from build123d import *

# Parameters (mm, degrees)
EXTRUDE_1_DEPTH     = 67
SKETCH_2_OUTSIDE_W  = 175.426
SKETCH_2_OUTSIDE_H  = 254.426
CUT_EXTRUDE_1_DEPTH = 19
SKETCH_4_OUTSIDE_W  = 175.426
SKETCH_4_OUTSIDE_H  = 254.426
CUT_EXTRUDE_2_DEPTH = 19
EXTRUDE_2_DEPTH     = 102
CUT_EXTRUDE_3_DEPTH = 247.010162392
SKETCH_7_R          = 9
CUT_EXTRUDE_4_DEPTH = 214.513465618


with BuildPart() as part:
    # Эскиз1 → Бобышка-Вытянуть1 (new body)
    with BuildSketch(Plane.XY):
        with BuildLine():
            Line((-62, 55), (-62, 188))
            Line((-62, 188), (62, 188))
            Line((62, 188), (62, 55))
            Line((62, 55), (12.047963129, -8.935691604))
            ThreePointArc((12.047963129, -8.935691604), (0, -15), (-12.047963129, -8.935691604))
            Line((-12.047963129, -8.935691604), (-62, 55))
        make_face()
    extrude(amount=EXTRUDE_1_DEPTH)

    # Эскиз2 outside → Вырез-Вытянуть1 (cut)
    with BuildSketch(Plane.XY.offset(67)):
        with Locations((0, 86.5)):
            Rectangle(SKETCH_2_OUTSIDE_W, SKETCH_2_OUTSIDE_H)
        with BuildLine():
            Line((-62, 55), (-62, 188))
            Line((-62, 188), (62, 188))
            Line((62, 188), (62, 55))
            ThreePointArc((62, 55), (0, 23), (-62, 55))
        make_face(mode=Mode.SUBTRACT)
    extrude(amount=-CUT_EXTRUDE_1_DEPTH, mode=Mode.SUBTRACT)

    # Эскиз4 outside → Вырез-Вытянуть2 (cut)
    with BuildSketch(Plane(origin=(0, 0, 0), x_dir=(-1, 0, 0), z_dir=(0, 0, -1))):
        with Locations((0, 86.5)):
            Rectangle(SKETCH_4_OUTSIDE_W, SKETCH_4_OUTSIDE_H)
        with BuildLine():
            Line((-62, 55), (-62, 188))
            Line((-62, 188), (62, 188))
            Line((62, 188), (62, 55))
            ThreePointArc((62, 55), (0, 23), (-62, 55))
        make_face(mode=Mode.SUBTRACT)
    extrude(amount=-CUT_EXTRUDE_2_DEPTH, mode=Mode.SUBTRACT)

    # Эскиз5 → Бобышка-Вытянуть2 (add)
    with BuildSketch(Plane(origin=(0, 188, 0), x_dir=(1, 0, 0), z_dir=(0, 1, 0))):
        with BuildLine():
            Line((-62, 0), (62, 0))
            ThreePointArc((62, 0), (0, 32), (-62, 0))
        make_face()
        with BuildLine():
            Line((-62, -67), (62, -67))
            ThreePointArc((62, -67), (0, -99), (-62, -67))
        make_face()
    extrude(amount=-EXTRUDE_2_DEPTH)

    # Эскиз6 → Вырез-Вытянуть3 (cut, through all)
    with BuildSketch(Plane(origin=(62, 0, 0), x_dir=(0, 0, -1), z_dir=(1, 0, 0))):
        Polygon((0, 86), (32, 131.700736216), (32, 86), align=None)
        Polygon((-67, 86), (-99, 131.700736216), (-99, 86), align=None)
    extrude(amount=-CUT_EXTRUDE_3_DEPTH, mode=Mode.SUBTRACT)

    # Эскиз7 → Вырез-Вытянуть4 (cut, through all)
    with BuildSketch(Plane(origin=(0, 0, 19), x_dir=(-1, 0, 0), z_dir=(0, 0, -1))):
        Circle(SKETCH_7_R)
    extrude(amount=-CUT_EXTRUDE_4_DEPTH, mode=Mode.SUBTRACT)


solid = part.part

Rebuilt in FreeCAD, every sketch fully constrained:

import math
import FreeCAD as App
import Part
import Sketcher

V = App.Vector
Q = App.Units.Quantity

doc = App.newDocument("Part")
params = doc.addObject("Spreadsheet::Sheet", "Params")
for row, (alias, value) in enumerate([
    ("sketch1_radius", "15 mm"),
    ("sketch1_width", "124 mm"),
    ("sketch1_height", "133 mm"),
    ("pad1_length", "67 mm"),
    ("sketch2_width", "124 mm"),
    ("sketch2_height", "133 mm"),
    ("pocket1_length", "19 mm"),
    ("sketch3_width", "124 mm"),
    ("sketch3_height", "133 mm"),
    ("pocket2_length", "19 mm"),
    ("sketch4_width", "124 mm"),
    ("pad2_length", "102 mm"),
    ("sketch5_height", "32 mm"),
    ("sketch6_diameter", "18 mm"),
], start=1):
    params.set(f"A{row}", alias)
    params.set(f"B{row}", "=" + value)
    params.setAlias(f"B{row}", alias)

body = doc.addObject("PartDesign::Body", "Body")

# Sketch on XY plane
sketch1 = doc.addObject("Sketcher::SketchObject", "Sketch")
body.addObject(sketch1)
sketch1.AttachmentSupport = (doc.XY_Plane, [""])
sketch1.MapMode = "FlatFace"
sketch1.addGeometry([
    Part.LineSegment(V(-62, 188, 0), V(-62, 55, 0)),  # 0
    Part.LineSegment(V(-62, 55, 0), V(-12, -9, 0)),  # 1
    Part.ArcOfCircle(Part.Circle(V(0, 0, 0), V(0, 0, 1), 15), math.radians(-143), math.radians(-37)),  # 2
    Part.LineSegment(V(12, -9, 0), V(62, 55, 0)),  # 3
    Part.LineSegment(V(62, 55, 0), V(62, 188, 0)),  # 4
    Part.LineSegment(V(62, 188, 0), V(-62, 188, 0)),  # 5
], False)
sketch1.addConstraint([
    Sketcher.Constraint("Coincident", 0, 2, 1, 1),
    Sketcher.Constraint("Coincident", 1, 2, 2, 1),
    Sketcher.Constraint("Coincident", 2, 2, 3, 1),
    Sketcher.Constraint("Coincident", 3, 2, 4, 1),
    Sketcher.Constraint("Coincident", 4, 2, 5, 1),
    Sketcher.Constraint("Coincident", 5, 2, 0, 1),
    Sketcher.Constraint("Vertical", 0),
    Sketcher.Constraint("Vertical", 4),
    Sketcher.Constraint("Horizontal", 5),
    Sketcher.Constraint("Coincident", 2, 3, -1, 1),
    Sketcher.Constraint("Symmetric", 0, 2, 3, 2, -2),
    Sketcher.Constraint("Horizontal", 1, 2, 2, 2),
    Sketcher.Constraint("Radius", 2, 15.0),
    Sketcher.Constraint("DistanceX", 5, 2, 5, 1, 124.0),
    Sketcher.Constraint("DistanceY", 0, 2, 0, 1, 133.0),
    Sketcher.Constraint("Angle", 1, Q("-52 deg")),
    Sketcher.Constraint("DistanceY", -1, 1, 0, 2, 55.0),
])
sketch1.setExpression("Constraints[12]", "Params.sketch1_radius")
sketch1.setExpression("Constraints[13]", "Params.sketch1_width")
sketch1.setExpression("Constraints[14]", "Params.sketch1_height")
pad1 = doc.addObject("PartDesign::Pad", "Pad")
body.addObject(pad1)
pad1.Profile = sketch1
pad1.setExpression("Length", "Params.pad1_length")

# Sketch on XY plane
sketch2 = doc.addObject("Sketcher::SketchObject", "Sketch001")
body.addObject(sketch2)
sketch2.AttachmentSupport = (doc.XY_Plane, [""])
sketch2.MapMode = "FlatFace"
sketch2.AttachmentOffset = App.Placement(V(0, 0, 67), App.Rotation())
sketch2.addGeometry([
    Part.LineSegment(V(-88, 214, 0), V(-88, -41, 0)),  # 0
    Part.LineSegment(V(-88, -41, 0), V(88, -41, 0)),  # 1
    Part.LineSegment(V(88, -41, 0), V(88, 214, 0)),  # 2
    Part.LineSegment(V(88, 214, 0), V(-88, 214, 0)),  # 3
    Part.ArcOfCircle(Part.Circle(V(0, 99, 0), V(0, 0, 1), 76), math.radians(-145), math.radians(-35)),  # 4
    Part.LineSegment(V(-62, 55, 0), V(-62, 188, 0)),  # 5
    Part.LineSegment(V(-62, 188, 0), V(62, 188, 0)),  # 6
    Part.LineSegment(V(62, 188, 0), V(62, 55, 0)),  # 7
], False)
sketch2.addConstraint([
    Sketcher.Constraint("Coincident", 0, 2, 1, 1),
    Sketcher.Constraint("Coincident", 1, 2, 2, 1),
    Sketcher.Constraint("Coincident", 2, 2, 3, 1),
    Sketcher.Constraint("Coincident", 3, 2, 0, 1),
    Sketcher.Constraint("Coincident", 4, 1, 5, 1),
    Sketcher.Constraint("Coincident", 5, 2, 6, 1),
    Sketcher.Constraint("Coincident", 6, 2, 7, 1),
    Sketcher.Constraint("Coincident", 7, 2, 4, 2),
    Sketcher.Constraint("Vertical", 0),
    Sketcher.Constraint("Horizontal", 1),
    Sketcher.Constraint("Vertical", 2),
    Sketcher.Constraint("Horizontal", 3),
    Sketcher.Constraint("Vertical", 5),
    Sketcher.Constraint("Horizontal", 6),
    Sketcher.Constraint("Vertical", 7),
    Sketcher.Constraint("Symmetric", 4, 1, 7, 2, -2),
    Sketcher.Constraint("DistanceX", 6, 1, 6, 2, 124.0),
    Sketcher.Constraint("DistanceY", 5, 1, 5, 2, 133.0),
    Sketcher.Constraint("DistanceY", -1, 1, 4, 1, 55.0),
    Sketcher.Constraint("Radius", 4, 76.0625),
    Sketcher.Constraint("DistanceX", 1, 1, 1, 2, 175.426),
    Sketcher.Constraint("DistanceY", 0, 2, 0, 1, 254.426),
    Sketcher.Constraint("DistanceX", 0, 2, -1, 1, 87.713),
    Sketcher.Constraint("DistanceY", 0, 2, -1, 1, 40.713),
])
sketch2.setExpression("Constraints[16]", "Params.sketch2_width")
sketch2.setExpression("Constraints[17]", "Params.sketch2_height")
pocket1 = doc.addObject("PartDesign::Pocket", "Pocket")
body.addObject(pocket1)
pocket1.Profile = sketch2
pocket1.setExpression("Length", "Params.pocket1_length")

# Sketch on XY plane
sketch3 = doc.addObject("Sketcher::SketchObject", "Sketch002")
body.addObject(sketch3)
sketch3.AttachmentSupport = (doc.XY_Plane, [""])
sketch3.MapMode = "FlatFace"
sketch3.addGeometry([
    Part.LineSegment(V(88, 214, 0), V(88, -41, 0)),  # 0
    Part.LineSegment(V(88, -41, 0), V(-88, -41, 0)),  # 1
    Part.LineSegment(V(-88, -41, 0), V(-88, 214, 0)),  # 2
    Part.LineSegment(V(-88, 214, 0), V(88, 214, 0)),  # 3
    Part.ArcOfCircle(Part.Circle(V(0, 99, 0), V(0, 0, 1), 76), math.radians(-145), math.radians(-35)),  # 4
    Part.LineSegment(V(62, 55, 0), V(62, 188, 0)),  # 5
    Part.LineSegment(V(62, 188, 0), V(-62, 188, 0)),  # 6
    Part.LineSegment(V(-62, 188, 0), V(-62, 55, 0)),  # 7
], False)
sketch3.addConstraint([
    Sketcher.Constraint("Coincident", 0, 2, 1, 1),
    Sketcher.Constraint("Coincident", 1, 2, 2, 1),
    Sketcher.Constraint("Coincident", 2, 2, 3, 1),
    Sketcher.Constraint("Coincident", 3, 2, 0, 1),
    Sketcher.Constraint("Coincident", 4, 2, 5, 1),
    Sketcher.Constraint("Coincident", 5, 2, 6, 1),
    Sketcher.Constraint("Coincident", 6, 2, 7, 1),
    Sketcher.Constraint("Coincident", 7, 2, 4, 1),
    Sketcher.Constraint("Vertical", 0),
    Sketcher.Constraint("Horizontal", 1),
    Sketcher.Constraint("Vertical", 2),
    Sketcher.Constraint("Horizontal", 3),
    Sketcher.Constraint("Vertical", 5),
    Sketcher.Constraint("Horizontal", 6),
    Sketcher.Constraint("Vertical", 7),
    Sketcher.Constraint("Symmetric", 4, 2, 7, 2, -2),
    Sketcher.Constraint("DistanceX", 6, 2, 6, 1, 124.0),
    Sketcher.Constraint("DistanceY", 5, 1, 5, 2, 133.0),
    Sketcher.Constraint("DistanceY", -1, 1, 4, 2, 55.0),
    Sketcher.Constraint("Radius", 4, 76.0625),
    Sketcher.Constraint("DistanceX", 1, 2, 1, 1, 175.426),
    Sketcher.Constraint("DistanceY", 0, 2, 0, 1, 254.426),
    Sketcher.Constraint("DistanceX", -1, 1, 0, 2, 87.713),
    Sketcher.Constraint("DistanceY", 0, 2, -1, 1, 40.713),
])
sketch3.setExpression("Constraints[16]", "Params.sketch3_width")
sketch3.setExpression("Constraints[17]", "Params.sketch3_height")
pocket2 = doc.addObject("PartDesign::Pocket", "Pocket001")
body.addObject(pocket2)
pocket2.Profile = sketch3
pocket2.setExpression("Length", "Params.pocket2_length")
pocket2.Reversed = True

# Sketch on XZ plane
sketch4 = doc.addObject("Sketcher::SketchObject", "Sketch003")
body.addObject(sketch4)
sketch4.AttachmentSupport = (doc.XZ_Plane, [""])
sketch4.MapMode = "FlatFace"
sketch4.AttachmentOffset = App.Placement(V(0, 0, -188), App.Rotation())
sketch4.addGeometry([
    Part.LineSegment(V(-62, 0, 0), V(62, 0, 0)),
    Part.ArcOfCircle(Part.Circle(V(0, 44, 0), V(0, 0, 1), 76), math.radians(-145), math.radians(-35)),
    Part.LineSegment(V(62, 67, 0), V(-62, 67, 0)),
    Part.ArcOfCircle(Part.Circle(V(0, 23, 0), V(0, 0, 1), 76), math.radians(35), math.radians(145)),
], False)
sketch4.addConstraint([
    Sketcher.Constraint("Coincident", 0, 1, 1, 1),
    Sketcher.Constraint("Coincident", 1, 2, 0, 2),
    Sketcher.Constraint("Coincident", 2, 1, 3, 1),
    Sketcher.Constraint("Coincident", 3, 2, 2, 2),
    Sketcher.Constraint("Horizontal", 0),
    Sketcher.Constraint("Horizontal", 2),
    Sketcher.Constraint("Equal", 1, 3),
    Sketcher.Constraint("Symmetric", 0, 1, 1, 2, -1, 1),
    Sketcher.Constraint("PointOnObject", 3, 3, -2),
    Sketcher.Constraint("Vertical", 1, 2, 2, 1),
    Sketcher.Constraint("DistanceX", 0, 1, 0, 2, 124.0),
    Sketcher.Constraint("DistanceY", -1, 1, 2, 1, 67.0),
    Sketcher.Constraint("Radius", 1, 76.0625),
])
sketch4.setExpression("Constraints[10]", "Params.sketch4_width")
pad2 = doc.addObject("PartDesign::Pad", "Pad001")
body.addObject(pad2)
pad2.Profile = sketch4
pad2.setExpression("Length", "Params.pad2_length")

# Sketch on YZ plane
sketch5 = doc.addObject("Sketcher::SketchObject", "Sketch004")
body.addObject(sketch5)
sketch5.AttachmentSupport = (doc.YZ_Plane, [""])
sketch5.MapMode = "FlatFace"
sketch5.AttachmentOffset = App.Placement(V(0, 0, 62), App.Rotation())
sketch5.addGeometry([
    Part.LineSegment(V(132, -32, 0), V(86, 0, 0)),  # 0
    Part.LineSegment(V(86, 0, 0), V(86, -32, 0)),  # 1
    Part.LineSegment(V(86, -32, 0), V(132, -32, 0)),  # 2
    Part.LineSegment(V(86, 67, 0), V(132, 99, 0)),  # 3
    Part.LineSegment(V(132, 99, 0), V(86, 99, 0)),  # 4
    Part.LineSegment(V(86, 99, 0), V(86, 67, 0)),  # 5
], False)
sketch5.addConstraint([
    Sketcher.Constraint("Coincident", 0, 2, 1, 1),
    Sketcher.Constraint("Coincident", 1, 2, 2, 1),
    Sketcher.Constraint("Coincident", 2, 2, 0, 1),
    Sketcher.Constraint("Coincident", 3, 2, 4, 1),
    Sketcher.Constraint("Coincident", 4, 2, 5, 1),
    Sketcher.Constraint("Coincident", 5, 2, 3, 1),
    Sketcher.Constraint("Vertical", 1),
    Sketcher.Constraint("Horizontal", 2),
    Sketcher.Constraint("Horizontal", 4),
    Sketcher.Constraint("Vertical", 5),
    Sketcher.Constraint("PointOnObject", 0, 2, -1),
    Sketcher.Constraint("Vertical", 2, 2, 3, 2),
    Sketcher.Constraint("Vertical", 1, 2, 4, 2),
    Sketcher.Constraint("Equal", 1, 5),
    Sketcher.Constraint("DistanceY", 1, 2, 1, 1, 32.0),
    Sketcher.Constraint("Angle", 0, Q("145 deg")),
    Sketcher.Constraint("DistanceX", -1, 1, 0, 2, 86.0),
    Sketcher.Constraint("DistanceY", -1, 1, 3, 2, 99.0),
])
sketch5.setExpression("Constraints[14]", "Params.sketch5_height")
pocket3 = doc.addObject("PartDesign::Pocket", "Pocket002")
body.addObject(pocket3)
pocket3.Profile = sketch5
pocket3.Type = "ThroughAll"

# Sketch on XY plane
sketch6 = doc.addObject("Sketcher::SketchObject", "Sketch005")
body.addObject(sketch6)
sketch6.AttachmentSupport = (doc.XY_Plane, [""])
sketch6.MapMode = "FlatFace"
sketch6.AttachmentOffset = App.Placement(V(0, 0, 19), App.Rotation())
sketch6.addGeometry(Part.Circle(V(0, 0, 0), V(0, 0, 1), 9), False)
sketch6.addConstraint([
    Sketcher.Constraint("Coincident", 0, 3, -1, 1),
    Sketcher.Constraint("Diameter", 0, 18.0),
])
sketch6.setExpression("Constraints[1]", "Params.sketch6_diameter")
pocket4 = doc.addObject("PartDesign::Pocket", "Pocket003")
body.addObject(pocket4)
pocket4.Profile = sketch6
pocket4.Type = "ThroughAll"
pocket4.Reversed = True

doc.recompute()
